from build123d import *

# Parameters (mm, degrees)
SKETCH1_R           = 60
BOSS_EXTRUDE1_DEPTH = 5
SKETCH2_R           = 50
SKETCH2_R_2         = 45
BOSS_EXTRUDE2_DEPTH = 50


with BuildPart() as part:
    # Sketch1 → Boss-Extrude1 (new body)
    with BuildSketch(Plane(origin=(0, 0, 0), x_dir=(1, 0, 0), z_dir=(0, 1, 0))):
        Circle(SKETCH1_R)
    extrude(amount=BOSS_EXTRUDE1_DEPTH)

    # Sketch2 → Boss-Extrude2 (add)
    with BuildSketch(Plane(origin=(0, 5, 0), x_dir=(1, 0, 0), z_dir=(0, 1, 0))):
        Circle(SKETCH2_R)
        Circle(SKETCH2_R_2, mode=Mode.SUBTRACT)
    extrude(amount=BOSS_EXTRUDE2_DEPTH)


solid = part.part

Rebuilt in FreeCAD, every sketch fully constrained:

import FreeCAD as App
import Part
import Sketcher

V = App.Vector

doc = App.newDocument("Part")
params = doc.addObject("Spreadsheet::Sheet", "Params")
for row, (alias, value) in enumerate([
    ("sketch1_diameter", "120 mm"),
    ("pad1_length", "5 mm"),
    ("sketch2_diameter", "100 mm"),
    ("sketch2_diameter2", "90 mm"),
    ("pad2_length", "50 mm"),
], start=1):
    params.set(f"A{row}", alias)
    params.set(f"B{row}", "=" + value)
    params.setAlias(f"B{row}", alias)

body = doc.addObject("PartDesign::Body", "Body")

sketch1 = body.newObject("Sketcher::SketchObject", "Sketch")
sketch1.AttachmentSupport = (doc.getObject("XZ_Plane"), [""])
sketch1.MapMode = "FlatFace"
sketch1.addGeometry(Part.Circle(V(0, 0, 0), V(0, 0, 1), 60), False)
sketch1.addConstraint([
    Sketcher.Constraint("Coincident", 0, 3, -1, 1),
    Sketcher.Constraint("Diameter", 0, 120.0),
])
sketch1.setExpression("Constraints[1]", "Params.sketch1_diameter")
pad1 = body.newObject("PartDesign::Pad", "Pad")
pad1.Profile = sketch1
pad1.setExpression("Length", "Params.pad1_length")
pad1.Reversed = True

sketch2 = body.newObject("Sketcher::SketchObject", "Sketch001")
sketch2.AttachmentSupport = (doc.getObject("XZ_Plane"), [""])
sketch2.MapMode = "FlatFace"
sketch2.AttachmentOffset = App.Placement(V(0, 0, -5), App.Rotation())
sketch2.addGeometry([
    Part.Circle(V(0, 0, 0), V(0, 0, 1), 50),
    Part.Circle(V(0, 0, 0), V(0, 0, 1), 45),
], False)
sketch2.addConstraint([
    Sketcher.Constraint("Coincident", 0, 3, -1, 1),
    Sketcher.Constraint("Coincident", 1, 3, -1, 1),
    Sketcher.Constraint("Diameter", 0, 100.0),
    Sketcher.Constraint("Diameter", 1, 90.0),
])
sketch2.setExpression("Constraints[2]", "Params.sketch2_diameter")
sketch2.setExpression("Constraints[3]", "Params.sketch2_diameter2")
pad2 = body.newObject("PartDesign::Pad", "Pad001")
pad2.Profile = sketch2
pad2.setExpression("Length", "Params.pad2_length")
pad2.Reversed = True

doc.recompute()
